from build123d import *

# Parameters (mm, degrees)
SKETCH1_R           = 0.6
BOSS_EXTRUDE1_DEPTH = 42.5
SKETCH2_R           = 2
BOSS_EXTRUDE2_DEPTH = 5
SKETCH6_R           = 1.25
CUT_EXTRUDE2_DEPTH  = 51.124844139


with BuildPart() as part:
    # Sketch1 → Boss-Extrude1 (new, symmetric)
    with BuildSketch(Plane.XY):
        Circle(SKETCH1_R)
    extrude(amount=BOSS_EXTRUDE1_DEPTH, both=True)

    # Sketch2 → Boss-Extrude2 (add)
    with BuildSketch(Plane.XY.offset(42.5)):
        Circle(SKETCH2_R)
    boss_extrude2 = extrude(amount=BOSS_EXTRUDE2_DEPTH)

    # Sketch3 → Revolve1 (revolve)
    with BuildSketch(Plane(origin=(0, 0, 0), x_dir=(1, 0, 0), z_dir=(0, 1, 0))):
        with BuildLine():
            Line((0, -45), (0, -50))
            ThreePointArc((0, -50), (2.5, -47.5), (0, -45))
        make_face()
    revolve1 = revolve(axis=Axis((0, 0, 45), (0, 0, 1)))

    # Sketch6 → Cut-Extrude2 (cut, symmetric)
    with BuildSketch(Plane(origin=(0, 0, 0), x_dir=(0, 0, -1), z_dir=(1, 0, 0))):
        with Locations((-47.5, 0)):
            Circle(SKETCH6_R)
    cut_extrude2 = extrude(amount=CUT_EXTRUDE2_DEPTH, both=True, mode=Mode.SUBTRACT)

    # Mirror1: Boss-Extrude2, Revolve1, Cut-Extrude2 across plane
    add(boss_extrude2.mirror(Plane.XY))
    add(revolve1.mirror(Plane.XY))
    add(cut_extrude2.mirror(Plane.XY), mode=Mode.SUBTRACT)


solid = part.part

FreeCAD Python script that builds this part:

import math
import FreeCAD as App
import Part
import Sketcher
from FreeCAD import Vector
Q = App.Units.Quantity

doc = App.newDocument("Part")
body = doc.addObject("PartDesign::Body", "Body")

sketch1 = body.newObject("Sketcher::SketchObject", "Sketch")
sketch1.AttachmentSupport = (doc.getObject("XY_Plane"), [""])
sketch1.MapMode = "FlatFace"
sketch1.addGeometry(Part.Circle(Vector(0, 0, 0), Vector(0, 0, 1), 0.6), False)
sketch1.addConstraint([
    Sketcher.Constraint("Coincident", 0, 3, -1, 1),
    Sketcher.Constraint("Diameter", 0, Q("1.2 mm")),
])
pad1 = body.newObject("PartDesign::Pad", "Pad")
pad1.Profile = sketch1
pad1.Length = 85
pad1.Midplane = True

sketch2 = body.newObject("Sketcher::SketchObject", "Sketch001")
sketch2.AttachmentSupport = (doc.getObject("XY_Plane"), [""])
sketch2.MapMode = "FlatFace"
sketch2.AttachmentOffset = App.Placement(Vector(0, 0, 42.5), App.Rotation())
sketch2.addGeometry(Part.Circle(Vector(0, 0, 0), Vector(0, 0, 1), 2), False)
sketch2.addConstraint([
    Sketcher.Constraint("Coincident", 0, 3, -1, 1),
    Sketcher.Constraint("Diameter", 0, Q("4 mm")),
])
pad2 = body.newObject("PartDesign::Pad", "Pad001")
pad2.Profile = sketch2
pad2.Length = 5

sketch3 = body.newObject("Sketcher::SketchObject", "Sketch002")
sketch3.AttachmentSupport = (doc.getObject("XZ_Plane"), [""])
sketch3.MapMode = "FlatFace"
sketch3.addGeometry([
    Part.LineSegment(Vector(0, 45, 0), Vector(0, 50, 0)),
    Part.ArcOfCircle(Part.Circle(Vector(0, 47.5, 0), Vector(0, 0, 1), 2.5), math.radians(-90), math.radians(90)),
], False)
sketch3.addConstraint([
    Sketcher.Constraint("Coincident", 0, 1, 1, 1),
    Sketcher.Constraint("Coincident", 1, 2, 0, 2),
    Sketcher.Constraint("Vertical", 0),
    Sketcher.Constraint("PointOnObject", 1, 3, -2),
    Sketcher.Constraint("PointOnObject", 0, 1, -2),
    Sketcher.Constraint("Radius", 1, Q("2.5 mm")),
    Sketcher.Constraint("DistanceY", -1, 1, 0, 1, Q("45 mm")),
])
revolution = body.newObject("PartDesign::Revolution", "Revolution")
revolution.Profile = sketch3
revolution.ReferenceAxis = (sketch3, ["V_Axis"])
revolution.Angle = 360

sketch4 = body.newObject("Sketcher::SketchObject", "Sketch003")
sketch4.AttachmentSupport = (doc.getObject("YZ_Plane"), [""])
sketch4.MapMode = "FlatFace"
sketch4.addGeometry(Part.Circle(Vector(0, 47.5, 0), Vector(0, 0, 1), 1.2), False)
sketch4.addConstraint([
    Sketcher.Constraint("PointOnObject", 0, 3, -2),
    Sketcher.Constraint("Diameter", 0, Q("2.5 mm")),
    Sketcher.Constraint("DistanceY", -1, 1, 0, 3, Q("47.5 mm")),
])
pocket1 = body.newObject("PartDesign::Pocket", "Pocket")
pocket1.Profile = sketch4
pocket1.Length = 102.249688
pocket1.Midplane = True
doc.recompute()

mirrored = body.newObject("PartDesign::Mirrored", "Mirrored")
mirrored.Originals = [pad2, revolution, pocket1]
mirrored.MirrorPlane = (doc.getObject("XY_Plane"), [""])
body.Tip = mirrored

doc.recompute()
